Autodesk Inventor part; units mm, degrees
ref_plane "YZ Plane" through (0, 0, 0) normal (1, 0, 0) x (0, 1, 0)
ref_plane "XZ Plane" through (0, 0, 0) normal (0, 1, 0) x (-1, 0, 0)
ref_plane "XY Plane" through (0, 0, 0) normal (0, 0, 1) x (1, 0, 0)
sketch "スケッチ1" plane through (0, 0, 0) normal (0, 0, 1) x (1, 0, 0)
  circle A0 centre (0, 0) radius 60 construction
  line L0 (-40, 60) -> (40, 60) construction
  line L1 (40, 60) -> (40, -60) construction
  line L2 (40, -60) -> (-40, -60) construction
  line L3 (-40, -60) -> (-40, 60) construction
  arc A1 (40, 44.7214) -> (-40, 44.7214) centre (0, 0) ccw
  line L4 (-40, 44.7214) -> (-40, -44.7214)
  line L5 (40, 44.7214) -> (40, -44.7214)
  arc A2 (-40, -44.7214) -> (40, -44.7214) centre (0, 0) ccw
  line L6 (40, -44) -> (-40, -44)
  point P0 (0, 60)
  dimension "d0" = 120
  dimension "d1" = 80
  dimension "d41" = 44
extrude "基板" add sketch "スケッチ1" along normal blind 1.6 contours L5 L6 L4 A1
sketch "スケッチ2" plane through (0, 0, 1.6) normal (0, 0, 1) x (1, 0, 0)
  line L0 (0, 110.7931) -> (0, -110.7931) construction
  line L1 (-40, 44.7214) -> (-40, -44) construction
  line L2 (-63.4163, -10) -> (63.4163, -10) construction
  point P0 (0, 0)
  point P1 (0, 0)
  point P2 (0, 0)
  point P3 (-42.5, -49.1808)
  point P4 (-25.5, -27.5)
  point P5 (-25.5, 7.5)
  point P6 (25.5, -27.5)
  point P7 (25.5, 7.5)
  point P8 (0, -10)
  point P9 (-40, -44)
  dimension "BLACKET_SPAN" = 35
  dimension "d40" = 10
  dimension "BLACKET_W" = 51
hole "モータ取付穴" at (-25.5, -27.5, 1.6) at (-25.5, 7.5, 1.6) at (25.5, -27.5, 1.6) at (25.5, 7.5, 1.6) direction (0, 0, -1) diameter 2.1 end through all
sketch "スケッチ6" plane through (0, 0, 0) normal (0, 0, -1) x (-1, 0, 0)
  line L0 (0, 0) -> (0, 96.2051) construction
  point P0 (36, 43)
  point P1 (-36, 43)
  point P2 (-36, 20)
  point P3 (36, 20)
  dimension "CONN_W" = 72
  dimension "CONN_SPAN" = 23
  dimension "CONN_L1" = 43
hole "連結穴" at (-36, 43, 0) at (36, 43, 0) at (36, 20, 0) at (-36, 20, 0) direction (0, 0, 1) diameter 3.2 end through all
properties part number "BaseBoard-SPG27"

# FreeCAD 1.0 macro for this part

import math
import FreeCAD as App
import Part
import Sketcher
from FreeCAD import Vector

doc = App.newDocument("Part")
body = doc.addObject("PartDesign::Body", "Body")

sketch1 = body.newObject("Sketcher::SketchObject", "Sketch")
sketch1.AttachmentSupport = (doc.getObject("XY_Plane"), [""])
sketch1.MapMode = "FlatFace"
sketch1.addGeometry([
    Part.LineSegment(Vector(40, -44, 0), Vector(40, 45, 0)),
    Part.ArcOfCircle(Part.Circle(Vector(0, 0, 0), Vector(0, 0, 1), 60), math.radians(48), math.radians(132)),
    Part.LineSegment(Vector(-40, 45, 0), Vector(-40, -44, 0)),
    Part.LineSegment(Vector(-40, -44, 0), Vector(40, -44, 0)),
], False)
sketch1.addConstraint([
    Sketcher.Constraint("Coincident", 0, 2, 1, 1),
    Sketcher.Constraint("Coincident", 1, 2, 2, 1),
    Sketcher.Constraint("Coincident", 2, 2, 3, 1),
    Sketcher.Constraint("Coincident", 3, 2, 0, 1),
    Sketcher.Constraint("Vertical", 0),
    Sketcher.Constraint("Vertical", 2),
    Sketcher.Constraint("Horizontal", 3),
    Sketcher.Constraint("Coincident", 1, 3, -1, 1),
    Sketcher.Constraint("Horizontal", 0, 2, 1, 2),
    Sketcher.Constraint("Radius", 1, 60.0),
    Sketcher.Constraint("DistanceX", 3, 1, 3, 2, 80.0),
    Sketcher.Constraint("DistanceY", 2, 2, -1, 1, 44.0),
])
pad1 = body.newObject("PartDesign::Pad", "Pad")
pad1.Profile = sketch1
pad1.Length = 1.6

sketch2 = body.newObject("Sketcher::SketchObject", "Sketch001")
sketch2.AttachmentSupport = (doc.getObject("XY_Plane"), [""])
sketch2.MapMode = "FlatFace"
sketch2.AttachmentOffset = App.Placement(Vector(0, 0, 1.6), App.Rotation())
sketch2.addGeometry([
    Part.Circle(Vector(-25.5, -27.5, 0), Vector(0, 0, 1), 1.1),
    Part.Circle(Vector(-25.5, 7.5, 0), Vector(0, 0, 1), 1.1),
    Part.Circle(Vector(25.5, -27.5, 0), Vector(0, 0, 1), 1.1),
    Part.Circle(Vector(25.5, 7.5, 0), Vector(0, 0, 1), 1.1),
], False)
sketch2.addConstraint([
    Sketcher.Constraint("Equal", 0, 1),
    Sketcher.Constraint("Equal", 1, 2),
    Sketcher.Constraint("Equal", 2, 3),
    Sketcher.Constraint("Symmetric", 0, 3, 2, 3, -2),
    Sketcher.Constraint("Symmetric", 1, 3, 3, 3, -2),
    Sketcher.Constraint("Vertical", 0, 3, 1, 3),
    Sketcher.Constraint("Diameter", 0, 2.1),
    Sketcher.Constraint("DistanceY", 0, 3, 1, 3, 35.0),
    Sketcher.Constraint("DistanceX", 0, 3, 2, 3, 51.0),
    Sketcher.Constraint("DistanceY", 0, 3, -1, 1, 27.5),
])
doc.recompute()
hole = body.newObject("PartDesign::Hole", "Hole")
hole.Profile = sketch2
hole.ThreadType = "None"
hole.Diameter = 2.1
hole.DepthType = "ThroughAll"

sketch3 = body.newObject("Sketcher::SketchObject", "Sketch002")
sketch3.AttachmentSupport = (doc.getObject("XY_Plane"), [""])
sketch3.MapMode = "FlatFace"
sketch3.addGeometry([
    Part.Circle(Vector(-36, 43, 0), Vector(0, 0, 1), 1.6),
    Part.Circle(Vector(36, 43, 0), Vector(0, 0, 1), 1.6),
    Part.Circle(Vector(36, 20, 0), Vector(0, 0, 1), 1.6),
    Part.Circle(Vector(-36, 20, 0), Vector(0, 0, 1), 1.6),
], False)
sketch3.addConstraint([
    Sketcher.Constraint("Equal", 0, 1),
    Sketcher.Constraint("Equal", 1, 2),
    Sketcher.Constraint("Equal", 2, 3),
    Sketcher.Constraint("Symmetric", 0, 3, 1, 3, -2),
    Sketcher.Constraint("Symmetric", 2, 3, 3, 3, -2),
    Sketcher.Constraint("Vertical", 1, 3, 2, 3),
    Sketcher.Constraint("Diameter", 0, 3.2),
    Sketcher.Constraint("DistanceX", 0, 3, -1, 1, 36.0),
    Sketcher.Constraint("DistanceY", -1, 1, 0, 3, 43.0),
    Sketcher.Constraint("DistanceY", -1, 1, 2, 3, 20.0),
])
doc.recompute()
hole2 = body.newObject("PartDesign::Hole", "Hole001")
hole2.Profile = sketch3
hole2.ThreadType = "None"
hole2.Diameter = 3.2
hole2.DepthType = "ThroughAll"
hole2.Reversed = True

doc.recompute()
